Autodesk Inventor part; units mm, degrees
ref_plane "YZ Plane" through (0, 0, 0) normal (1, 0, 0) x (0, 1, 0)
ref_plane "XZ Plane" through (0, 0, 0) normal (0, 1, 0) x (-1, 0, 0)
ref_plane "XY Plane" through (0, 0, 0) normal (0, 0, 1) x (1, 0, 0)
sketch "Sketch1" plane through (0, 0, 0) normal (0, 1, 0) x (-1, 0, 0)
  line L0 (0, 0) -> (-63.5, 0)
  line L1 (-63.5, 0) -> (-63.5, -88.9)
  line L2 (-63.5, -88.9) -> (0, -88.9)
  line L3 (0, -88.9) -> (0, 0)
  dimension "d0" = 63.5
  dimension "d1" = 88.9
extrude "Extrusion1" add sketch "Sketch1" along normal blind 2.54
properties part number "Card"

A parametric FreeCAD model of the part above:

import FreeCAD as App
import Part
import Sketcher
Q = App.Units.Quantity

doc = App.newDocument("Part")
body = doc.addObject("PartDesign::Body", "Body")

# Sketch on XZ plane
sketch1 = body.newObject("Sketcher::SketchObject", "Sketch")
sketch1.AttachmentSupport = (doc.getObject("XZ_Plane"), [""])
sketch1.MapMode = "FlatFace"
sketch1.addGeometry(Part.LineSegment(App.Vector(0, -89, 0), App.Vector(0, 0, 0)), False)
sketch1.addGeometry(Part.LineSegment(App.Vector(0, 0, 0), App.Vector(64, 0, 0)), False)
sketch1.addGeometry(Part.LineSegment(App.Vector(64, 0, 0), App.Vector(64, -89, 0)), False)
sketch1.addGeometry(Part.LineSegment(App.Vector(64, -89, 0), App.Vector(0, -89, 0)), False)
sketch1.addConstraint(Sketcher.Constraint("Coincident", 0, 2, 1, 1))
sketch1.addConstraint(Sketcher.Constraint("Coincident", 1, 2, 2, 1))
sketch1.addConstraint(Sketcher.Constraint("Coincident", 2, 2, 3, 1))
sketch1.addConstraint(Sketcher.Constraint("Coincident", 3, 2, 0, 1))
sketch1.addConstraint(Sketcher.Constraint("Vertical", 0))
sketch1.addConstraint(Sketcher.Constraint("Horizontal", 1))
sketch1.addConstraint(Sketcher.Constraint("Vertical", 2))
sketch1.addConstraint(Sketcher.Constraint("Horizontal", 3))
sketch1.addConstraint(Sketcher.Constraint("Coincident", 0, 2, -1, 1))
sketch1.addConstraint(Sketcher.Constraint("DistanceX", 1, 1, 1, 2, Q("2.5 in")))
sketch1.addConstraint(Sketcher.Constraint("DistanceY", 0, 1, 0, 2, Q("3.5 in")))
pad1 = body.newObject("PartDesign::Pad", "Pad")
pad1.Profile = sketch1
pad1.Length = Q("0.1 in")
pad1.Reversed = True

doc.recompute()
